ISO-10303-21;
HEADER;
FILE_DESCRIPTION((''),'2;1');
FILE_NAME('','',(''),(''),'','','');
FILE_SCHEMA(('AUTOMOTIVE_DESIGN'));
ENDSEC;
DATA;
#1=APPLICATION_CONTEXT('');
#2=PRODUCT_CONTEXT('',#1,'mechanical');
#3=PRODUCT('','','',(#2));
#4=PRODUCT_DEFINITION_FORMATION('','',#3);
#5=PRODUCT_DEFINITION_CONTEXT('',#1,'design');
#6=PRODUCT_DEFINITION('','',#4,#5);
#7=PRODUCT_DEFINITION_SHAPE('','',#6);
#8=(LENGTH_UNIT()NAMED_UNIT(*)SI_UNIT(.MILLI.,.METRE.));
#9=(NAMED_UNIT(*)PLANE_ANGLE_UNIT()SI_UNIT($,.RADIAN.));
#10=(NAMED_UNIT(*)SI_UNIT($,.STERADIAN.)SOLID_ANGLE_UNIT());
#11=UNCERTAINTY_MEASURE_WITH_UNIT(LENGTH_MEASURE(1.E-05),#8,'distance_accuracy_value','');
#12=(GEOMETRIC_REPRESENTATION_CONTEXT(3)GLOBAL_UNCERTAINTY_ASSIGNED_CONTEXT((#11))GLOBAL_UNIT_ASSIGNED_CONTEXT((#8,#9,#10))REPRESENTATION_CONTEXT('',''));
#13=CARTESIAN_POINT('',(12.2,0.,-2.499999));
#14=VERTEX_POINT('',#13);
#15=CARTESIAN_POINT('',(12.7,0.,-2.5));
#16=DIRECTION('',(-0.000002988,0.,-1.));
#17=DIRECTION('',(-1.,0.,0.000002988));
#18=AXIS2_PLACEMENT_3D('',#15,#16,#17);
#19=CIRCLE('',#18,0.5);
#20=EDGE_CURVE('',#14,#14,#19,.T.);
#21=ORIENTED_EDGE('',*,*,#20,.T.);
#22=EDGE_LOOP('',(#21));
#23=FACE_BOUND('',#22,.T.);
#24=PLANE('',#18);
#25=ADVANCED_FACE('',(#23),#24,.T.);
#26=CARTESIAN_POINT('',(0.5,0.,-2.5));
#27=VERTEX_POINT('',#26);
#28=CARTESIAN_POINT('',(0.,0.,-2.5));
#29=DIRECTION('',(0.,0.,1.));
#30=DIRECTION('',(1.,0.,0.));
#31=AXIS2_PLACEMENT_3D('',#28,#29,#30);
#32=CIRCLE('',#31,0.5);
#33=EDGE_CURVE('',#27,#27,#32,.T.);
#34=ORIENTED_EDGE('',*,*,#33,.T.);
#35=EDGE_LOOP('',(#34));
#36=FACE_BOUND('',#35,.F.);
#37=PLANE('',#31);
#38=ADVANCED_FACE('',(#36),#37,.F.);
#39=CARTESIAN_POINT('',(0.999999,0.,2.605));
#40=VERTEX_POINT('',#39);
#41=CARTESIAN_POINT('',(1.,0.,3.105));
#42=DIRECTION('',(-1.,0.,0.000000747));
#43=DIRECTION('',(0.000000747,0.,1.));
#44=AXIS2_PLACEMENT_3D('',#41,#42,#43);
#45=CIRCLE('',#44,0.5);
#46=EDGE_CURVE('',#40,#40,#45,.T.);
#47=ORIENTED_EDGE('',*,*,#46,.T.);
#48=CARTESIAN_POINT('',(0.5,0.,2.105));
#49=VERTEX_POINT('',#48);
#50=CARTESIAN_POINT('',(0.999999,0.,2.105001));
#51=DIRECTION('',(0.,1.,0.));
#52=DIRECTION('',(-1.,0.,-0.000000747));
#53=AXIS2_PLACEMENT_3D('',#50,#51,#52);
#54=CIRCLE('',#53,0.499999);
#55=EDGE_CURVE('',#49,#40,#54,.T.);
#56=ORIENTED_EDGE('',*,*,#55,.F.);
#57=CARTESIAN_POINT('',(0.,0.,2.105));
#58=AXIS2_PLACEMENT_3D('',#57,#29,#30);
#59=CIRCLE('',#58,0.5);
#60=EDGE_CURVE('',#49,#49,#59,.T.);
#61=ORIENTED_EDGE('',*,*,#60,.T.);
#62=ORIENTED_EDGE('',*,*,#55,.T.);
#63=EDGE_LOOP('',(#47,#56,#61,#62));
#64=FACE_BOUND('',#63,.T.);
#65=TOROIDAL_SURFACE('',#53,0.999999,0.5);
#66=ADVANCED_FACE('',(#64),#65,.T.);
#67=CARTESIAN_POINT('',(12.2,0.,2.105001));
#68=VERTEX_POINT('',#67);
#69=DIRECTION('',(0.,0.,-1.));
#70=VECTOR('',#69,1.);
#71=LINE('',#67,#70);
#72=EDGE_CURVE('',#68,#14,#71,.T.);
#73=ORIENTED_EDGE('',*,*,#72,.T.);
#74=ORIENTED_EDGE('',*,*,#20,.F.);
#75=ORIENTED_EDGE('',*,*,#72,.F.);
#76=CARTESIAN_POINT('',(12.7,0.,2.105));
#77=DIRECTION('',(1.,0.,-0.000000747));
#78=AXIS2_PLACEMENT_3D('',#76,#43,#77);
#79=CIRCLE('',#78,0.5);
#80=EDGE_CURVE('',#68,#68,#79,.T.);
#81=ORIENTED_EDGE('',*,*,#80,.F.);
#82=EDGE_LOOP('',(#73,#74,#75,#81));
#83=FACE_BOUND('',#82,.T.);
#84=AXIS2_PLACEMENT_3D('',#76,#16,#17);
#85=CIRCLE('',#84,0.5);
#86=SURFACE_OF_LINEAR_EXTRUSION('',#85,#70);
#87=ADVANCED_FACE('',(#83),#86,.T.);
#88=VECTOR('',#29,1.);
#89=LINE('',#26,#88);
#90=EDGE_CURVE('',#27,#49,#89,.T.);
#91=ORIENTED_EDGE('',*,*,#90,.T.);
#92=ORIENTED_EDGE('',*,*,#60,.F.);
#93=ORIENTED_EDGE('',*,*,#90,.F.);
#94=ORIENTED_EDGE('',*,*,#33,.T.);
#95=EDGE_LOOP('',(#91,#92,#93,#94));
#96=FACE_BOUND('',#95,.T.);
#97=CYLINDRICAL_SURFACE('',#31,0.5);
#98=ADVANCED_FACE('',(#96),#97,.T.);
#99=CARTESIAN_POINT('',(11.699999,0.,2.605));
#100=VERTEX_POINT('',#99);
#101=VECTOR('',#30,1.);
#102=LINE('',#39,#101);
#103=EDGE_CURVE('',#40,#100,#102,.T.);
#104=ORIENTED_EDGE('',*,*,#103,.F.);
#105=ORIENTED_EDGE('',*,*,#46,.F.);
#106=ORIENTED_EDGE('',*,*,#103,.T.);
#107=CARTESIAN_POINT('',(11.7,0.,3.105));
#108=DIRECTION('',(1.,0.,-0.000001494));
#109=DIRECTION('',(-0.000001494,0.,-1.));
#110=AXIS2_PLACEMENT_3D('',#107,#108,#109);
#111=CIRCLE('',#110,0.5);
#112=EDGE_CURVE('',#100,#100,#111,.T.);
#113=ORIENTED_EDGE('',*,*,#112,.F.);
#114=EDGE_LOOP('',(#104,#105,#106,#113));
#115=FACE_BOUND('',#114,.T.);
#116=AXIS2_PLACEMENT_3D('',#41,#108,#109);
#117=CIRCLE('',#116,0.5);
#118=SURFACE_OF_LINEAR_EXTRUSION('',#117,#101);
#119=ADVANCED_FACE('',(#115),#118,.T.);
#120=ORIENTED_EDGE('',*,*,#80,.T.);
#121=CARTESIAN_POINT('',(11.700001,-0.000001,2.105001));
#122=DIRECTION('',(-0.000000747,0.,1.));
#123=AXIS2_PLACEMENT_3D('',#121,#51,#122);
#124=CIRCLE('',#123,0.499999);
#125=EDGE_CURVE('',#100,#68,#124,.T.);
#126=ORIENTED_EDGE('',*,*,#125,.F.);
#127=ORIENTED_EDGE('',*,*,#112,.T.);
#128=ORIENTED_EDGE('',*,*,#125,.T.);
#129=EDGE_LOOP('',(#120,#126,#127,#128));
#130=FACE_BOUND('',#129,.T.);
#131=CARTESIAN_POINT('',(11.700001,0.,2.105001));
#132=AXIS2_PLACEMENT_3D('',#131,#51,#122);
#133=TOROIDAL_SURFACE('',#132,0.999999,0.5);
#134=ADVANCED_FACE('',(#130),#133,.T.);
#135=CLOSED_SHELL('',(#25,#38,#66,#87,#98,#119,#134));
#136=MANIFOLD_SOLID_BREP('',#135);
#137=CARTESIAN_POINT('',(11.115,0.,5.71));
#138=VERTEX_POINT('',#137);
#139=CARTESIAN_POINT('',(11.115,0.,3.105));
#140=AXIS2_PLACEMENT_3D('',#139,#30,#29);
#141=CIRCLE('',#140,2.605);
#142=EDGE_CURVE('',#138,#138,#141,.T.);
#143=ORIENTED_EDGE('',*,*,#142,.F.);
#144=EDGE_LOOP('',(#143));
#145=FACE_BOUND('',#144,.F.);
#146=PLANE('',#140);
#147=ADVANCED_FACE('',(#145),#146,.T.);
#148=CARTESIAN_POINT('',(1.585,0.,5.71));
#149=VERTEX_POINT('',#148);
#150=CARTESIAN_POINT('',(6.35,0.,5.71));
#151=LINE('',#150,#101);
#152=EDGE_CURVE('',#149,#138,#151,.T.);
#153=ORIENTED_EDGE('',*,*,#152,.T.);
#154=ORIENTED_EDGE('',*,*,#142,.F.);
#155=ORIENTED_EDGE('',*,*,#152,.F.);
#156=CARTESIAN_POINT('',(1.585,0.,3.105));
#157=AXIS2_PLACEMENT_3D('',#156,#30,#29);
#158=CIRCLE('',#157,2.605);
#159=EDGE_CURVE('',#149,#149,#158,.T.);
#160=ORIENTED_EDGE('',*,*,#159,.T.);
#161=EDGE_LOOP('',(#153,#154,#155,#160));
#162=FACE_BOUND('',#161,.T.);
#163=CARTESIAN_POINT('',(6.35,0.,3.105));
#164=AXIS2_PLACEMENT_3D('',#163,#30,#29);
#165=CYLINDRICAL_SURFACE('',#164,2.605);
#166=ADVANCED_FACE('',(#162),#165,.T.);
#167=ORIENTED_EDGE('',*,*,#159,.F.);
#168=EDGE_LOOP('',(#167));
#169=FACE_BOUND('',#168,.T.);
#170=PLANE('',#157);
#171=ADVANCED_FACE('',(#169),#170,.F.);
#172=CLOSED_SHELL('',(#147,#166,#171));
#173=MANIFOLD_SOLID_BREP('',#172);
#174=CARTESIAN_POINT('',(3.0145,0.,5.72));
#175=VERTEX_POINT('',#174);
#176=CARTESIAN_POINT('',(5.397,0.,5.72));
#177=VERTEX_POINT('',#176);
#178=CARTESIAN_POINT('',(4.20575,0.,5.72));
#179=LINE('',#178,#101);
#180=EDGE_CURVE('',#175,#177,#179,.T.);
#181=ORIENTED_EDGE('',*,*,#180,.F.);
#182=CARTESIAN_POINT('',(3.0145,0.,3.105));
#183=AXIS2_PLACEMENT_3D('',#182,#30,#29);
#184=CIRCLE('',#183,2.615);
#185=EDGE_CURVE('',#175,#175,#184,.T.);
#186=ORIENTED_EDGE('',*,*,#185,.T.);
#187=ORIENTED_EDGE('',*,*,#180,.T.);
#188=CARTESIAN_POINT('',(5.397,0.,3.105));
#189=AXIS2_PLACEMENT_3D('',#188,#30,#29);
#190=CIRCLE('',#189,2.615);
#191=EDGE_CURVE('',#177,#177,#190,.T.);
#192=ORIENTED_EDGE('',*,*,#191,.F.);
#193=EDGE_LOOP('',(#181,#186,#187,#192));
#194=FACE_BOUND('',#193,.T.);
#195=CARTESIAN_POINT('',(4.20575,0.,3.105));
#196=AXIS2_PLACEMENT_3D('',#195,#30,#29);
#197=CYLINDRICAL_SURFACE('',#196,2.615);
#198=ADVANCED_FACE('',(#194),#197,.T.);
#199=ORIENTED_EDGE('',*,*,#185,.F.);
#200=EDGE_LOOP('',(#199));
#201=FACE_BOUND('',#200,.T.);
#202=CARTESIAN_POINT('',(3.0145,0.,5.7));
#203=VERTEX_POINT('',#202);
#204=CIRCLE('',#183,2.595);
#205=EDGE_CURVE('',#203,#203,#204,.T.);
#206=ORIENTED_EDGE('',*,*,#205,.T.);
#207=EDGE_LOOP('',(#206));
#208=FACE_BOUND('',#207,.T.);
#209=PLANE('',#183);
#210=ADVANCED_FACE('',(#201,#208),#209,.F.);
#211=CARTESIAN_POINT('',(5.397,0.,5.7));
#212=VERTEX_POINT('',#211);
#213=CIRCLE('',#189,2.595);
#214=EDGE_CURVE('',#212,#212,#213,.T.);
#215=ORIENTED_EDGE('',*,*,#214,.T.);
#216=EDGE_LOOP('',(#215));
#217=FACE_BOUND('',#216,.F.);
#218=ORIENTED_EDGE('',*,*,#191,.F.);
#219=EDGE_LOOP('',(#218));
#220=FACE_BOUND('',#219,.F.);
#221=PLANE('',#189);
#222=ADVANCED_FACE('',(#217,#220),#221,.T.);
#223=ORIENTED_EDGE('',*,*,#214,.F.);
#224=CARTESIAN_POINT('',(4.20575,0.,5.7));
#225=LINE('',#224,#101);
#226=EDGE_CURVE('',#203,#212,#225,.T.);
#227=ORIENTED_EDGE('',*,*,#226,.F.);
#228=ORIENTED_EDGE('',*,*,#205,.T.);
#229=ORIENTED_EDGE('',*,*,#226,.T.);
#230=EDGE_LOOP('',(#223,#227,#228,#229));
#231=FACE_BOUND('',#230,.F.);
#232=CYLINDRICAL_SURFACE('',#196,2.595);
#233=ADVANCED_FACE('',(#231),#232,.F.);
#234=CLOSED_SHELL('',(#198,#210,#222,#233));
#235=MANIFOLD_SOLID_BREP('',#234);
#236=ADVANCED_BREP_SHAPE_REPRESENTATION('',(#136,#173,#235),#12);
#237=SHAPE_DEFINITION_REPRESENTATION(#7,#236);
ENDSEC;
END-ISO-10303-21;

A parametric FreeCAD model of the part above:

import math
import FreeCAD as App
import Part
import Sketcher

V = App.Vector
Q = App.Units.Quantity

doc = App.newDocument("Part")
body = doc.addObject("PartDesign::Body", "Body")

# Sketch on XZ plane
sketch1 = body.newObject("Sketcher::SketchObject", "Sketch")
sketch1.AttachmentSupport = (doc.getObject("XZ_Plane"), [""])
sketch1.MapMode = "FlatFace"
sketch1.addGeometry([
    Part.LineSegment(V(1.6, 5.7, 0), V(1.6, 3.1, 0)),
    Part.LineSegment(V(1.6, 3.1, 0), V(11.1, 3.1, 0)),
    Part.LineSegment(V(11.1, 3.1, 0), V(11.1, 5.7, 0)),
    Part.LineSegment(V(11.1, 5.7, 0), V(1.6, 5.7, 0)),
], False)
sketch1.addGeometry(Part.LineSegment(V(1.6, 3.1, 0), V(11.1, 3.1, 0)), True)  # axis
sketch1.addConstraint([
    Sketcher.Constraint("Coincident", 0, 2, 1, 1),
    Sketcher.Constraint("Coincident", 1, 2, 2, 1),
    Sketcher.Constraint("Coincident", 2, 2, 3, 1),
    Sketcher.Constraint("Coincident", 3, 2, 0, 1),
    Sketcher.Constraint("Vertical", 0),
    Sketcher.Constraint("Horizontal", 1),
    Sketcher.Constraint("Vertical", 2),
    Sketcher.Constraint("Horizontal", 3),
    Sketcher.Constraint("Horizontal", 4),
    Sketcher.Constraint("Coincident", 4, 1, 0, 2),
    Sketcher.Constraint("Vertical", 2, 2, 4, 2),
    Sketcher.Constraint("DistanceX", 1, 1, 1, 2, Q("9.53 mm")),
    Sketcher.Constraint("DistanceY", 0, 2, 0, 1, Q("2.605 mm")),
    Sketcher.Constraint("DistanceY", -1, 1, 2, 2, Q("5.71 mm")),
    Sketcher.Constraint("DistanceX", -1, 1, 0, 2, Q("1.585 mm")),
])
revolution = body.newObject("PartDesign::Revolution", "Revolution")
revolution.Profile = sketch1
revolution.ReferenceAxis = (sketch1, ["Axis0"])
revolution.Angle = 360
body2 = doc.addObject("PartDesign::Body", "Body001")

# Sketch on XZ plane
sketch2 = body2.newObject("Sketcher::SketchObject", "Sketch001")
sketch2.AttachmentSupport = (doc.getObject("XZ_Plane001"), [""])
sketch2.MapMode = "FlatFace"
sketch2.addGeometry([
    Part.LineSegment(V(3.014, 5.72, 0), V(3.014, 5.7, 0)),
    Part.LineSegment(V(3.014, 5.7, 0), V(5.397, 5.7, 0)),
    Part.LineSegment(V(5.397, 5.7, 0), V(5.397, 5.72, 0)),
    Part.LineSegment(V(5.397, 5.72, 0), V(3.014, 5.72, 0)),
], False)
sketch2.addGeometry(Part.LineSegment(V(3.014, 3.105, 0), V(5.397, 3.105, 0)), True)  # axis
sketch2.addConstraint([
    Sketcher.Constraint("Coincident", 0, 2, 1, 1),
    Sketcher.Constraint("Coincident", 1, 2, 2, 1),
    Sketcher.Constraint("Coincident", 2, 2, 3, 1),
    Sketcher.Constraint("Coincident", 3, 2, 0, 1),
    Sketcher.Constraint("Vertical", 0),
    Sketcher.Constraint("Horizontal", 1),
    Sketcher.Constraint("Vertical", 2),
    Sketcher.Constraint("Horizontal", 3),
    Sketcher.Constraint("Horizontal", 4),
    Sketcher.Constraint("Vertical", 3, 2, 4, 1),
    Sketcher.Constraint("Vertical", 2, 2, 4, 2),
    Sketcher.Constraint("DistanceY", 0, 2, 0, 1, Q("0.02 mm")),
    Sketcher.Constraint("DistanceY", -1, 1, 0, 2, Q("5.7 mm")),
    Sketcher.Constraint("DistanceX", 1, 1, 1, 2, Q("2.3825 mm")),
    Sketcher.Constraint("DistanceX", -1, 1, 1, 2, Q("5.397 mm")),
    Sketcher.Constraint("DistanceY", -1, 1, 4, 1, Q("3.105 mm")),
])
revolution2 = body2.newObject("PartDesign::Revolution", "Revolution001")
revolution2.Profile = sketch2
revolution2.ReferenceAxis = (sketch2, ["Axis0"])
revolution2.Angle = 360
body3 = doc.addObject("PartDesign::Body", "Body002")

# Sketch on XY plane
sketch3 = body3.newObject("Sketcher::SketchObject", "Sketch002")
sketch3.AttachmentSupport = (doc.getObject("XY_Plane002"), [""])
sketch3.MapMode = "FlatFace"
sketch3.AttachmentOffset = App.Placement(V(0, 0, -2), App.Rotation())
sketch3.addGeometry(Part.Circle(V(0, 0, 0), V(0, 0, 1), 0.5), False)
sketch3.addConstraint([
    Sketcher.Constraint("Coincident", 0, 3, -1, 1),
    Sketcher.Constraint("Diameter", 0, Q("1 mm")),
])

# Sketch on XZ plane
sketch4 = body3.newObject("Sketcher::SketchObject", "Sketch003")
sketch4.AttachmentSupport = (doc.getObject("XZ_Plane002"), [""])
sketch4.MapMode = "FlatFace"
sketch4.addGeometry([
    Part.LineSegment(V(0, -2.5, 0), V(0, 2.1, 0)),  # 0
    Part.ArcOfCircle(Part.Circle(V(1, 2.1, 0), V(0, 0, 1), 1), math.radians(90), math.radians(180)),  # 1
    Part.LineSegment(V(1, 3.1, 0), V(11.7, 3.1, 0)),  # 2
    Part.ArcOfCircle(Part.Circle(V(11.7, 2.1, 0), V(0, 0, 1), 1), math.radians(0), math.radians(90)),  # 3
    Part.LineSegment(V(12.7, 2.1, 0), V(12.7, -2.5, 0)),  # 4
], False)
sketch4.addConstraint([
    Sketcher.Constraint("Tangent", 0, 2, 1, 2),
    Sketcher.Constraint("Tangent", 1, 1, 2, 1),
    Sketcher.Constraint("Tangent", 2, 2, 3, 2),
    Sketcher.Constraint("Tangent", 3, 1, 4, 1),
    Sketcher.Constraint("Vertical", 0),
    Sketcher.Constraint("Horizontal", 2),
    Sketcher.Constraint("Vertical", 4),
    Sketcher.Constraint("Equal", 1, 3),
    Sketcher.Constraint("PointOnObject", 0, 1, -2),
    Sketcher.Constraint("Horizontal", 0, 1, 4, 2),
    Sketcher.Constraint("Radius", 1, Q("0.999999 mm")),
    Sketcher.Constraint("DistanceX", 2, 1, 2, 2, Q("10.7 mm")),
    Sketcher.Constraint("DistanceY", 0, 1, -1, 1, Q("2.5 mm")),
    Sketcher.Constraint("DistanceY", 0, 1, 0, 2, Q("4.605 mm")),
])
doc.recompute()

additivepipe = body3.newObject("PartDesign::AdditivePipe", "AdditivePipe")
additivepipe.Profile = sketch3
additivepipe.Spine = (sketch4, ["Edge1", "Edge2", "Edge3", "Edge4", "Edge5"])

doc.recompute()
